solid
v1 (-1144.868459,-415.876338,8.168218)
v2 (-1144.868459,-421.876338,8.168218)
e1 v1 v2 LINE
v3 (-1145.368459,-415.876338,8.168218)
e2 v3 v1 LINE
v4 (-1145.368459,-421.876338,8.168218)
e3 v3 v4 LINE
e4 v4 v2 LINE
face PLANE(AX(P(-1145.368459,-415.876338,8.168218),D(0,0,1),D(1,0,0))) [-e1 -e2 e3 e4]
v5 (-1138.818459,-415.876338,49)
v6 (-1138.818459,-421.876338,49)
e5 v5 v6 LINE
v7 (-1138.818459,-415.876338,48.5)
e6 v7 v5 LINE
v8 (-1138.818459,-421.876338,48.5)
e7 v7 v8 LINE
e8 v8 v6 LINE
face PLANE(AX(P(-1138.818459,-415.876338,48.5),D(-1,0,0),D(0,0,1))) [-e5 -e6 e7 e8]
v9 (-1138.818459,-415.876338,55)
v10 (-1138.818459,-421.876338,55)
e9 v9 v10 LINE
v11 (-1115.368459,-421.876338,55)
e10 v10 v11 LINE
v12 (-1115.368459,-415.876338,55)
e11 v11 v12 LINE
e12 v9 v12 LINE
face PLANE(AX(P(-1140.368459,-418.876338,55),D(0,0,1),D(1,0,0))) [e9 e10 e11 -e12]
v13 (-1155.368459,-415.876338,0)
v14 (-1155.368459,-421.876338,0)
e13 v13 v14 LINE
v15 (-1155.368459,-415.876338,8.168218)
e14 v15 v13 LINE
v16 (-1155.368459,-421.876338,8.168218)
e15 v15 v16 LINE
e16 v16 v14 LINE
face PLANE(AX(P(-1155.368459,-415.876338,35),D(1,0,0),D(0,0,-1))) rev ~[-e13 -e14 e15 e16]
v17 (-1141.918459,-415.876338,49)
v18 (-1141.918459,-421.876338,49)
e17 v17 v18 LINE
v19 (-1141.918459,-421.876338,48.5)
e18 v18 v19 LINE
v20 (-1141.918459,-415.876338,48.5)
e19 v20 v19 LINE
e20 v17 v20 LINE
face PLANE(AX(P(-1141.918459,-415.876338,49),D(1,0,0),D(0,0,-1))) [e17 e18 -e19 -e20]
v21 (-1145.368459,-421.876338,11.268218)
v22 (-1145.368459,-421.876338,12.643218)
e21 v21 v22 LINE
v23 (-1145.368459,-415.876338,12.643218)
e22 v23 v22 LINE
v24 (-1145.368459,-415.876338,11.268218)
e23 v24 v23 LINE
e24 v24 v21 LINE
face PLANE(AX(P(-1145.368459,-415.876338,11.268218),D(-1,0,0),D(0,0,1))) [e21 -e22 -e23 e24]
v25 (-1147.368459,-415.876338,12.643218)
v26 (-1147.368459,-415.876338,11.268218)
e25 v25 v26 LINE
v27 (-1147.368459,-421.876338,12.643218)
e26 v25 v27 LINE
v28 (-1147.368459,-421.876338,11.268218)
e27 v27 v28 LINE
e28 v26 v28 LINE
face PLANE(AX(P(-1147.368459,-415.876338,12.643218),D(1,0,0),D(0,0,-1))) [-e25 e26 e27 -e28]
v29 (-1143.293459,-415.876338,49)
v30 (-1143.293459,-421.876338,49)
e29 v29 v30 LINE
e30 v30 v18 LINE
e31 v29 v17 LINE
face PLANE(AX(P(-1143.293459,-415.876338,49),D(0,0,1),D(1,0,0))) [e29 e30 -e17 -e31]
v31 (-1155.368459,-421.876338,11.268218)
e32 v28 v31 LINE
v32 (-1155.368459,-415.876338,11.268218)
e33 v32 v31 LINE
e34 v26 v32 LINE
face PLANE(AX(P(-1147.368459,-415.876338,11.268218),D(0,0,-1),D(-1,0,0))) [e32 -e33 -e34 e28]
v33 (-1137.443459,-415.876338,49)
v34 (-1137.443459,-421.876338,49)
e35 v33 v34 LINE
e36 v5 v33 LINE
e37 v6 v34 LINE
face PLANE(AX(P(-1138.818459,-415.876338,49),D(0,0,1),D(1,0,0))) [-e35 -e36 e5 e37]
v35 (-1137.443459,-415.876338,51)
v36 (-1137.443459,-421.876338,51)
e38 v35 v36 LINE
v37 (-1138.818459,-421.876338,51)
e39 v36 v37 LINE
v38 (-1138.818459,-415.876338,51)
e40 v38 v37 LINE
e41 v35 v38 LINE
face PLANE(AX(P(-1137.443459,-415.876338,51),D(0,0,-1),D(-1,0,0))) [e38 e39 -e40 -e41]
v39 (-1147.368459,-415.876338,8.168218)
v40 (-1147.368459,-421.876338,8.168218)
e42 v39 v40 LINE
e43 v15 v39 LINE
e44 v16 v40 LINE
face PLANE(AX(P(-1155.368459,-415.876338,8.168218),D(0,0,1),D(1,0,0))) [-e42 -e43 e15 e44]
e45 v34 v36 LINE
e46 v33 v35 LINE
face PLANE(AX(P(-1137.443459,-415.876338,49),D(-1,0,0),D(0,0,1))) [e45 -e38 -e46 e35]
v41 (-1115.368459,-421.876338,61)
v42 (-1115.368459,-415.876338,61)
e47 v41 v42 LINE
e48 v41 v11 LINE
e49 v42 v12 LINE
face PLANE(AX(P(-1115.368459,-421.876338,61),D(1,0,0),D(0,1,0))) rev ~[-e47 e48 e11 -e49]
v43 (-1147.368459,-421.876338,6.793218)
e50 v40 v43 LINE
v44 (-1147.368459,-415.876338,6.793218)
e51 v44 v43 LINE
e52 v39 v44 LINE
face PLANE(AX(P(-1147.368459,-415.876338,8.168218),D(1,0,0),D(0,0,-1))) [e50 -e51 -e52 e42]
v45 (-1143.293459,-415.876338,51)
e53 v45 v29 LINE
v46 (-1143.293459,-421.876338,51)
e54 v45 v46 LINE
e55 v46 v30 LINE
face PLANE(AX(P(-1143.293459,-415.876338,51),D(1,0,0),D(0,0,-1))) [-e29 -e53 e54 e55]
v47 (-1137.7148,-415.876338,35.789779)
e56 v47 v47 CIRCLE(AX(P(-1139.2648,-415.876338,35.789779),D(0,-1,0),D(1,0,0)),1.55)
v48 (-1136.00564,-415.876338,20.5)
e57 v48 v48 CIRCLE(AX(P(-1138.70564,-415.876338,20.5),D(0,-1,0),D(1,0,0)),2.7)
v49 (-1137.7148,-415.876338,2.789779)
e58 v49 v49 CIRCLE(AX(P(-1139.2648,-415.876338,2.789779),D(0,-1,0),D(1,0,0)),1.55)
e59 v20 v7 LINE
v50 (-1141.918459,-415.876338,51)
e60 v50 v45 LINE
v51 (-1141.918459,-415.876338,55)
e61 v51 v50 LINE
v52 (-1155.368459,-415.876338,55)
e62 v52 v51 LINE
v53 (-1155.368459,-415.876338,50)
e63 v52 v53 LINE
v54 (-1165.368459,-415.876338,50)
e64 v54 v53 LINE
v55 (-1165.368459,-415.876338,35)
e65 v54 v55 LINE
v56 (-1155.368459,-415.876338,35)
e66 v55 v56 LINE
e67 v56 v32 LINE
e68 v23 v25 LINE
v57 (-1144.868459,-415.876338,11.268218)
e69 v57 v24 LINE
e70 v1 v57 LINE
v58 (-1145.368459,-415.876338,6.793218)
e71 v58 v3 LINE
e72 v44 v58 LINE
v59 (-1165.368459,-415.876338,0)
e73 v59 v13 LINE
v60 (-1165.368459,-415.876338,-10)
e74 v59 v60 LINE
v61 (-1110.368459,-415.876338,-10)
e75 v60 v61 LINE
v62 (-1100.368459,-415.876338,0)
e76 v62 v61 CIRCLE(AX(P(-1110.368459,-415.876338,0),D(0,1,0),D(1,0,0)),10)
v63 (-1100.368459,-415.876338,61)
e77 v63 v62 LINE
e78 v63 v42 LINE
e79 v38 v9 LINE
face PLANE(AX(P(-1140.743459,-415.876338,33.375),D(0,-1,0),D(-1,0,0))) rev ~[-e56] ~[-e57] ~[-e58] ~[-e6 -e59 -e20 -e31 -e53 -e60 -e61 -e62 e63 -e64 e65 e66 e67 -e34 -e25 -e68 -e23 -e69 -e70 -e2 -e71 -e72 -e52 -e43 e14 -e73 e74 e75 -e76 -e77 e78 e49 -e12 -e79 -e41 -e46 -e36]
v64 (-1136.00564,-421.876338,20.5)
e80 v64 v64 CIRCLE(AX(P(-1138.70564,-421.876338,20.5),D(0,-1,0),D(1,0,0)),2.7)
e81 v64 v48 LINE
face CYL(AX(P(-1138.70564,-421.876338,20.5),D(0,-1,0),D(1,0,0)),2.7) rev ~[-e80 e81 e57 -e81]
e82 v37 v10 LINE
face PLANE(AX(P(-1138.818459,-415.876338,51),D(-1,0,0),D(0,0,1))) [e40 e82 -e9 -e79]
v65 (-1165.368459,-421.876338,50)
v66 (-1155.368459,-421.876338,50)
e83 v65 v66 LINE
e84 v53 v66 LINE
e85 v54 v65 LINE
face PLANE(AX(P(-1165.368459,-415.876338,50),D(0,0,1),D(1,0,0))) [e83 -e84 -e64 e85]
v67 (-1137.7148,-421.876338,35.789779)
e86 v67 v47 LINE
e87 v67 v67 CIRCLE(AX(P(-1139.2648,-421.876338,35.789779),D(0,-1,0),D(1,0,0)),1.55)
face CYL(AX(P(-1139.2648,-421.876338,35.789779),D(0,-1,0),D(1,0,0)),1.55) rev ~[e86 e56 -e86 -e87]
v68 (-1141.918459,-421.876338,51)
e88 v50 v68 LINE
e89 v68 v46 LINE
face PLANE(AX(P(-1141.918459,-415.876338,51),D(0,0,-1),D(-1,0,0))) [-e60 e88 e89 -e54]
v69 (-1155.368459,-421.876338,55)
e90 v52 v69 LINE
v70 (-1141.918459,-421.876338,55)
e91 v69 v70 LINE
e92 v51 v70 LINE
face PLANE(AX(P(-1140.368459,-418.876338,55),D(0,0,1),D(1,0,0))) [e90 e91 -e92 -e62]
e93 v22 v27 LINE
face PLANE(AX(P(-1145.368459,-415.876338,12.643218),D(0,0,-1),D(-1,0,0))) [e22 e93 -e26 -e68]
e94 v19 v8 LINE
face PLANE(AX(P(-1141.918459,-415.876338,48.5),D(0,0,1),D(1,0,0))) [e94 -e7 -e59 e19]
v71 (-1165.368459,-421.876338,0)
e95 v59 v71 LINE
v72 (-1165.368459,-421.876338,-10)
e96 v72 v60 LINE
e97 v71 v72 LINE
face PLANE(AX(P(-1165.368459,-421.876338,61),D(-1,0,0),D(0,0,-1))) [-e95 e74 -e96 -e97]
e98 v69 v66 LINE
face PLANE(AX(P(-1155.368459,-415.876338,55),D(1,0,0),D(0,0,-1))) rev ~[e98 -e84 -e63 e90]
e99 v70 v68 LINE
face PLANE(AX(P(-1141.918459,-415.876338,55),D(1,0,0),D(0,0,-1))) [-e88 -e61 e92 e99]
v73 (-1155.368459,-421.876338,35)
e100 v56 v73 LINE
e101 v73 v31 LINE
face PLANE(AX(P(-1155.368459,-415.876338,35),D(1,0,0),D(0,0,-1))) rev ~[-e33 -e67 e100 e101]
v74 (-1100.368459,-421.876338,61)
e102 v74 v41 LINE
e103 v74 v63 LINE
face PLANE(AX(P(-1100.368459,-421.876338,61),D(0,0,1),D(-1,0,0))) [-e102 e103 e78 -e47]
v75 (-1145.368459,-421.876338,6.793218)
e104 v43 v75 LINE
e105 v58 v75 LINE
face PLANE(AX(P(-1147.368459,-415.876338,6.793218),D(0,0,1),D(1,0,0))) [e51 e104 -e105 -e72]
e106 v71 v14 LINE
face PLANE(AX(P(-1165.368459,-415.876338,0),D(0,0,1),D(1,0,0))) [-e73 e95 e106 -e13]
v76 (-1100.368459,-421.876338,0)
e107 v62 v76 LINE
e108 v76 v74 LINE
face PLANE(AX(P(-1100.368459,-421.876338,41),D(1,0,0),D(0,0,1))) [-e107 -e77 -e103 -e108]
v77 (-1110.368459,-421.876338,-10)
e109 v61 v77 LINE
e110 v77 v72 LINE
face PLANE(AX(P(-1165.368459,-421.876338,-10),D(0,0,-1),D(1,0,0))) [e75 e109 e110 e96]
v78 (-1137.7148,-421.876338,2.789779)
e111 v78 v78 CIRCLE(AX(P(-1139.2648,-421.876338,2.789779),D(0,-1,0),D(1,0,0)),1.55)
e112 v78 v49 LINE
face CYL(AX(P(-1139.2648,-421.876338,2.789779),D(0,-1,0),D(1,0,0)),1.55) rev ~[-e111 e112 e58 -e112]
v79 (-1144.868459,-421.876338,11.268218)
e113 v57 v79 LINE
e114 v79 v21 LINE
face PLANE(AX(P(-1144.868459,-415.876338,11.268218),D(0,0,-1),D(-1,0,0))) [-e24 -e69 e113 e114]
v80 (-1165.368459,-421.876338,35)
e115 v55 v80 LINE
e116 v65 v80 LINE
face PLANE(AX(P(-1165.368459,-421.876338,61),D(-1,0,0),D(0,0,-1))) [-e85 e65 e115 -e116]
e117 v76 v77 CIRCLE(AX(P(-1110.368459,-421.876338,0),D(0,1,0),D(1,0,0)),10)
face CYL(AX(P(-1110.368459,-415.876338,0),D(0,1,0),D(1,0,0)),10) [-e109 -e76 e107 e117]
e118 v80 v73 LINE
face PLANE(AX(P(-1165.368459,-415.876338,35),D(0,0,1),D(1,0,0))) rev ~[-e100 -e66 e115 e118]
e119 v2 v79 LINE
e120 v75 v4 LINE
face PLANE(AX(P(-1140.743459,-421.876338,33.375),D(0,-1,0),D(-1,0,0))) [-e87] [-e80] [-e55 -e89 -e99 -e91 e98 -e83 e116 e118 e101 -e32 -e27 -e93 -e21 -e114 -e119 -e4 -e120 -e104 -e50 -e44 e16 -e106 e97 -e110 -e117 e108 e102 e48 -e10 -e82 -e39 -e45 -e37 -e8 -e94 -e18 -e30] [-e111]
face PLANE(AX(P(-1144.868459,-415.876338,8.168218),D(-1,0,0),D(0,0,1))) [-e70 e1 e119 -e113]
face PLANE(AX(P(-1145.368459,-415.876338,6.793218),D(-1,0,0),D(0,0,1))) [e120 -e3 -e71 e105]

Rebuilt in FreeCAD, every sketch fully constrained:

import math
import FreeCAD as App
import Part
import Sketcher
from FreeCAD import Vector


def add_polygon(sketch, points):
    """Adds a closed chain of lines whose ends are joined by coincident constraints."""
    first, n = sketch.GeometryCount, len(points)
    for a, b in zip(points, points[1:] + points[:1]):
        sketch.addGeometry(Part.LineSegment(App.Vector(*a, 0), App.Vector(*b, 0)), False)
    for i in range(n):
        sketch.addConstraint(Sketcher.Constraint("Coincident", first + i, 2, first + (i + 1) % n, 1))

doc = App.newDocument("Part")
body = doc.addObject("PartDesign::Body", "Body")

# Sketch on XZ plane
sketch1 = doc.addObject("Sketcher::SketchObject", "Sketch")
body.addObject(sketch1)
sketch1.AttachmentSupport = (doc.XZ_Plane, [""])
sketch1.MapMode = "FlatFace"
sketch1.AttachmentOffset = App.Placement(Vector(0, 0, 418.876338), App.Rotation())
add_polygon(sketch1, [(-1142, -10), (-1165, -10), (-1165, 61), (-1100, 61), (-1100, 41), (-1142, 41)])  # lines 0-5
sketch1.addConstraint([
    Sketcher.Constraint("Horizontal", 0),
    Sketcher.Constraint("Vertical", 1),
    Sketcher.Constraint("Horizontal", 2),
    Sketcher.Constraint("Vertical", 3),
    Sketcher.Constraint("Horizontal", 4),
    Sketcher.Constraint("Vertical", 5),
    Sketcher.Constraint("DistanceX", 0, 2, 0, 1, 23.0),
    Sketcher.Constraint("DistanceX", 2, 1, 2, 2, 65.0),
    Sketcher.Constraint("DistanceY", 1, 1, 1, 2, 71.0),
    Sketcher.Constraint("DistanceY", 3, 2, 3, 1, 20.0),
    Sketcher.Constraint("DistanceY", 0, 2, -1, 1, 10.0),
    Sketcher.Constraint("DistanceX", 0, 2, -1, 1, 1165.368459),
])
pad1 = doc.addObject("PartDesign::Pad", "Pad")
body.addObject(pad1)
pad1.Profile = sketch1
pad1.Type = "TwoLengths"
pad1.Length = 3
pad1.Length2 = 3
pad1.Reversed = True

# Sketch on XY plane
sketch2 = doc.addObject("Sketcher::SketchObject", "Sketch001")
body.addObject(sketch2)
sketch2.AttachmentSupport = (doc.XY_Plane, [""])
sketch2.MapMode = "FlatFace"
sketch2.AttachmentOffset = App.Placement(Vector(0, 0, 61), App.Rotation())
add_polygon(sketch2, [(-1165, -416), (-1165, -422), (-1115, -422), (-1115, -416)])  # lines 0-3
sketch2.addConstraint([
    Sketcher.Constraint("Vertical", 0),
    Sketcher.Constraint("Horizontal", 1),
    Sketcher.Constraint("Vertical", 2),
    Sketcher.Constraint("Horizontal", 3),
    Sketcher.Constraint("DistanceX", 1, 1, 1, 2, 50.0),
    Sketcher.Constraint("DistanceY", 0, 2, 0, 1, 6.0),
    Sketcher.Constraint("DistanceX", 0, 2, -1, 1, 1165.368459),
    Sketcher.Constraint("DistanceY", 0, 2, -1, 1, 421.876338),
])
pocket1 = doc.addObject("PartDesign::Pocket", "Pocket")
body.addObject(pocket1)
pocket1.Profile = sketch2
pocket1.Length = 6

# Sketch on XZ plane
sketch3 = doc.addObject("Sketcher::SketchObject", "Sketch002")
body.addObject(sketch3)
sketch3.AttachmentSupport = (doc.XZ_Plane, [""])
sketch3.MapMode = "FlatFace"
sketch3.AttachmentOffset = App.Placement(Vector(0, 0, 415.876338), App.Rotation())
add_polygon(sketch3, [(-1141.9, 55), (-1138.8, 55), (-1138.8, 51), (-1137.4, 51), (-1137.4, 49), (-1138.8, 49), (-1138.8, 48.5), (-1141.9, 48.5), (-1141.9, 49), (-1143.3, 49), (-1143.3, 51), (-1141.9, 51)])  # lines 0-11
sketch3.addConstraint([
    Sketcher.Constraint("Horizontal", 0),
    Sketcher.Constraint("Vertical", 1),
    Sketcher.Constraint("Horizontal", 2),
    Sketcher.Constraint("Vertical", 3),
    Sketcher.Constraint("Horizontal", 4),
    Sketcher.Constraint("Vertical", 5),
    Sketcher.Constraint("Horizontal", 6),
    Sketcher.Constraint("Vertical", 7),
    Sketcher.Constraint("Horizontal", 8),
    Sketcher.Constraint("Vertical", 9),
    Sketcher.Constraint("Horizontal", 10),
    Sketcher.Constraint("Vertical", 11),
    Sketcher.Constraint("Horizontal", 4, 2, 7, 2),
    Sketcher.Constraint("Horizontal", 2, 2, 9, 2),
    Sketcher.Constraint("Vertical", 1, 2, 4, 2),
    Sketcher.Constraint("Vertical", 7, 2, 10, 2),
    Sketcher.Constraint("Equal", 4, 8),
    Sketcher.Constraint("DistanceY", 1, 2, 1, 1, 4.0),
    Sketcher.Constraint("DistanceY", 3, 2, 3, 1, 2.0),
    Sketcher.Constraint("DistanceX", 0, 1, 0, 2, 3.1),
    Sketcher.Constraint("DistanceY", 5, 2, 5, 1, 0.5),
    Sketcher.Constraint("DistanceY", -1, 1, 0, 2, 55.0),
    Sketcher.Constraint("DistanceX", 2, 1, 2, 2, 1.375),
    Sketcher.Constraint("DistanceX", 0, 2, -1, 1, 1138.818459),
])
pocket2 = doc.addObject("PartDesign::Pocket", "Pocket001")
body.addObject(pocket2)
pocket2.Profile = sketch3
pocket2.Length = 6
pocket2.Reversed = True

# Sketch on XZ plane
sketch4 = doc.addObject("Sketcher::SketchObject", "Sketch003")
body.addObject(sketch4)
sketch4.AttachmentSupport = (doc.XZ_Plane, [""])
sketch4.MapMode = "FlatFace"
sketch4.AttachmentOffset = App.Placement(Vector(0, 0, 415.876338), App.Rotation())
add_polygon(sketch4, [(-1165, 0), (-1165, 35), (-1155, 35), (-1155, 0)])  # lines 0-3
add_polygon(sketch4, [(-1165, 50), (-1165, 55), (-1155, 55), (-1155, 50)])  # lines 4-7
sketch4.addConstraint([
    Sketcher.Constraint("Vertical", 0),
    Sketcher.Constraint("Horizontal", 1),
    Sketcher.Constraint("Vertical", 2),
    Sketcher.Constraint("Horizontal", 3),
    Sketcher.Constraint("Vertical", 4),
    Sketcher.Constraint("Horizontal", 5),
    Sketcher.Constraint("Vertical", 6),
    Sketcher.Constraint("Horizontal", 7),
    Sketcher.Constraint("PointOnObject", 2, 2, -1),
    Sketcher.Constraint("Vertical", 3, 2, 4, 2),
    Sketcher.Constraint("Vertical", 2, 2, 5, 2),
    Sketcher.Constraint("DistanceX", 1, 1, 1, 2, 10.0),
    Sketcher.Constraint("DistanceY", 0, 1, 0, 2, 35.0),
    Sketcher.Constraint("DistanceY", 4, 1, 4, 2, 5.0),
    Sketcher.Constraint("DistanceY", -1, 1, 4, 2, 55.0),
    Sketcher.Constraint("DistanceX", 0, 2, -1, 1, 1165.368459),
])
pocket3 = doc.addObject("PartDesign::Pocket", "Pocket002")
body.addObject(pocket3)
pocket3.Profile = sketch4
pocket3.Length = 6
pocket3.Reversed = True

# Sketch on XZ plane
sketch5 = doc.addObject("Sketcher::SketchObject", "Sketch004")
body.addObject(sketch5)
sketch5.AttachmentSupport = (doc.XZ_Plane, [""])
sketch5.MapMode = "FlatFace"
sketch5.AttachmentOffset = App.Placement(Vector(0, 0, 415.876338), App.Rotation())
add_polygon(sketch5, [(-1147.4, 8.2), (-1155.4, 8.2), (-1155.4, 11.3), (-1147.4, 11.3), (-1147.4, 12.6), (-1145.4, 12.6), (-1145.4, 11.3), (-1144.9, 11.3), (-1144.9, 8.2), (-1145.4, 8.2), (-1145.4, 6.8), (-1147.4, 6.8)])  # lines 0-11
sketch5.addConstraint([
    Sketcher.Constraint("Horizontal", 0),
    Sketcher.Constraint("Vertical", 1),
    Sketcher.Constraint("Horizontal", 2),
    Sketcher.Constraint("Vertical", 3),
    Sketcher.Constraint("Horizontal", 4),
    Sketcher.Constraint("Vertical", 5),
    Sketcher.Constraint("Horizontal", 6),
    Sketcher.Constraint("Vertical", 7),
    Sketcher.Constraint("Horizontal", 8),
    Sketcher.Constraint("Vertical", 9),
    Sketcher.Constraint("Horizontal", 10),
    Sketcher.Constraint("Vertical", 11),
    Sketcher.Constraint("Horizontal", 2, 2, 5, 2),
    Sketcher.Constraint("Horizontal", 0, 2, 7, 2),
    Sketcher.Constraint("Vertical", 5, 2, 8, 2),
    Sketcher.Constraint("Vertical", 3, 2, 10, 2),
    Sketcher.Constraint("Equal", 5, 9),
    Sketcher.Constraint("DistanceX", 0, 2, 0, 1, 8.0),
    Sketcher.Constraint("DistanceX", 4, 1, 4, 2, 2.0),
    Sketcher.Constraint("DistanceX", 6, 1, 6, 2, 0.5),
    Sketcher.Constraint("DistanceY", 1, 1, 1, 2, 3.1),
    Sketcher.Constraint("DistanceY", 3, 1, 3, 2, 1.375),
    Sketcher.Constraint("DistanceX", 0, 2, -1, 1, 1155.368459),
    Sketcher.Constraint("DistanceY", -1, 1, 0, 2, 8.168218),
])
pocket4 = doc.addObject("PartDesign::Pocket", "Pocket003")
body.addObject(pocket4)
pocket4.Profile = sketch5
pocket4.Length = 6
pocket4.Reversed = True
body2 = doc.addObject("PartDesign::Body", "Body001")

# Sketch on XZ plane
sketch6 = doc.addObject("Sketcher::SketchObject", "Sketch005")
body2.addObject(sketch6)
sketch6.AttachmentSupport = (doc.getObject("XZ_Plane001"), [""])
sketch6.MapMode = "FlatFace"
sketch6.AttachmentOffset = App.Placement(Vector(0, 0, 415.876338), App.Rotation())
sketch6.addGeometry([
    Part.LineSegment(Vector(-1142, -10, 0), Vector(-1142, 41, 0)),  # 0
    Part.LineSegment(Vector(-1142, 41, 0), Vector(-1100, 41, 0)),  # 1
    Part.LineSegment(Vector(-1100, 41, 0), Vector(-1100, 0, 0)),  # 2
    Part.ArcOfCircle(Part.Circle(Vector(-1110, 0, 0), Vector(0, 0, 1), 10), math.radians(-90), math.radians(0)),  # 3
    Part.LineSegment(Vector(-1110, -10, 0), Vector(-1142, -10, 0)),  # 4
], False)
sketch6.addConstraint([
    Sketcher.Constraint("Coincident", 0, 2, 1, 1),
    Sketcher.Constraint("Coincident", 1, 2, 2, 1),
    Sketcher.Constraint("Tangent", 2, 2, 3, 2),
    Sketcher.Constraint("Tangent", 3, 1, 4, 1),
    Sketcher.Constraint("Coincident", 4, 2, 0, 1),
    Sketcher.Constraint("Vertical", 0),
    Sketcher.Constraint("Horizontal", 1),
    Sketcher.Constraint("Vertical", 2),
    Sketcher.Constraint("Horizontal", 4),
    Sketcher.Constraint("PointOnObject", 3, 3, -1),
    Sketcher.Constraint("Radius", 3, 10.0),
    Sketcher.Constraint("DistanceX", 1, 1, 1, 2, 42.0),
    Sketcher.Constraint("DistanceY", 0, 1, 0, 2, 51.0),
    Sketcher.Constraint("DistanceX", 3, 3, -1, 1, 1110.368459),
])
pad2 = doc.addObject("PartDesign::Pad", "Pad001")
body2.addObject(pad2)
pad2.Profile = sketch6
pad2.Length = 6
doc.recompute()

boolean = doc.addObject("PartDesign::Boolean", "Boolean")
body2.addObject(boolean)
boolean.Type = "Fuse"
boolean.addObjects([body])

# Sketch on XZ plane
sketch7 = doc.addObject("Sketcher::SketchObject", "Sketch006")
body2.addObject(sketch7)
sketch7.AttachmentSupport = (doc.getObject("XZ_Plane001"), [""])
sketch7.MapMode = "FlatFace"
sketch7.AttachmentOffset = App.Placement(Vector(0, 0, 421.876338), App.Rotation())
sketch7.addGeometry([
    Part.Circle(Vector(-1139.3, 35.8, 0), Vector(0, 0, 1), 1.6),
    Part.Circle(Vector(-1139.3, 2.8, 0), Vector(0, 0, 1), 1.6),
    Part.Circle(Vector(-1138.7, 20.5, 0), Vector(0, 0, 1), 2.7),
], False)
sketch7.addConstraint([
    Sketcher.Constraint("Equal", 0, 1),
    Sketcher.Constraint("Vertical", 0, 3, 1, 3),
    Sketcher.Constraint("Diameter", 0, 3.1),
    Sketcher.Constraint("Diameter", 2, 5.4),
    Sketcher.Constraint("DistanceY", 1, 3, 0, 3, 33.0),
    Sketcher.Constraint("DistanceY", -1, 1, 2, 3, 20.5),
    Sketcher.Constraint("DistanceX", 0, 3, -1, 1, 1139.2648),
    Sketcher.Constraint("DistanceY", -1, 1, 0, 3, 35.789779),
    Sketcher.Constraint("DistanceX", 2, 3, -1, 1, 1138.70564),
])
pocket5 = doc.addObject("PartDesign::Pocket", "Pocket004")
body2.addObject(pocket5)
pocket5.Profile = sketch7
pocket5.Length = 6

doc.recompute()
